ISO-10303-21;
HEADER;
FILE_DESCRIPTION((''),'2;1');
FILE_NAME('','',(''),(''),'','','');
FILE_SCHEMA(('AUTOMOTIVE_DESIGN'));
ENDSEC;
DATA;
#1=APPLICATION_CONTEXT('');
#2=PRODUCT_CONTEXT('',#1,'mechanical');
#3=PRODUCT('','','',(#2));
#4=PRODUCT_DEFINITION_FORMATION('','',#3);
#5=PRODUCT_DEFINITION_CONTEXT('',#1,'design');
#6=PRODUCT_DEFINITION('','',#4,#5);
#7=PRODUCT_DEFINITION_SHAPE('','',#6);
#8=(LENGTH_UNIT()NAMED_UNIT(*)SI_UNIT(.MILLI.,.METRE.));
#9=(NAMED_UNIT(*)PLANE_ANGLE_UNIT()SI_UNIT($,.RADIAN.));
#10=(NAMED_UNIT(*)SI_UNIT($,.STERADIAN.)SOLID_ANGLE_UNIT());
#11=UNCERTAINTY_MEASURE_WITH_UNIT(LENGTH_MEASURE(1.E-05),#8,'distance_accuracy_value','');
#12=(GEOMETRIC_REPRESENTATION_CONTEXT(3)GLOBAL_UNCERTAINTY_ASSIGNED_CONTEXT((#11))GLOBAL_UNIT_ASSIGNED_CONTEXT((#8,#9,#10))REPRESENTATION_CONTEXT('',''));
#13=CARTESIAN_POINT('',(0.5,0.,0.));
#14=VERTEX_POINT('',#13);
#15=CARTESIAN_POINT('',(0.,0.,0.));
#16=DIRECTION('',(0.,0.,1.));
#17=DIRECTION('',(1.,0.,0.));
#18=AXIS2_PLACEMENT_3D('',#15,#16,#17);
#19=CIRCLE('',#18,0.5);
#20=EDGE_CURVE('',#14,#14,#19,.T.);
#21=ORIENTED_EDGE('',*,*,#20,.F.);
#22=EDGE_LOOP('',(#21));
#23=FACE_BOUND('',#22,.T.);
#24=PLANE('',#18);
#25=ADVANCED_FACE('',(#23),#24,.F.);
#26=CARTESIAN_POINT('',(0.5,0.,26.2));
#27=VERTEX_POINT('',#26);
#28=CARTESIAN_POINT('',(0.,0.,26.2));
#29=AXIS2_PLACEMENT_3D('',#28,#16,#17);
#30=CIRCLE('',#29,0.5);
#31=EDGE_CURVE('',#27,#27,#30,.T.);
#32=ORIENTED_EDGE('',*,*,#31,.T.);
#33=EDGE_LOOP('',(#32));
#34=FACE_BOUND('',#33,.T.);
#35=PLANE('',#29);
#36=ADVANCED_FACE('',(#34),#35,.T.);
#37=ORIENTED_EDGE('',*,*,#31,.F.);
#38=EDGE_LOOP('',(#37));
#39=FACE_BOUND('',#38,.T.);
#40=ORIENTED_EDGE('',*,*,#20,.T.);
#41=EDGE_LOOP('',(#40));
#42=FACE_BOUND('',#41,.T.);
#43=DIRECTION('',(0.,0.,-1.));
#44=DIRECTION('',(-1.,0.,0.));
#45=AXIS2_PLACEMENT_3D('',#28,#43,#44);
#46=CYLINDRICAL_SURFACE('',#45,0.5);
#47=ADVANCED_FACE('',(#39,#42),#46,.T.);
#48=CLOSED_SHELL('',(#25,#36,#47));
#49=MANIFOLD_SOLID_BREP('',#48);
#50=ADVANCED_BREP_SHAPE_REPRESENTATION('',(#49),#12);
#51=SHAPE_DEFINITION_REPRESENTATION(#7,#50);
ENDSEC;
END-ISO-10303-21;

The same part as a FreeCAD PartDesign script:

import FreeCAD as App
import Part
import Sketcher
from FreeCAD import Vector
Q = App.Units.Quantity

doc = App.newDocument("Part")
params = doc.addObject("Spreadsheet::Sheet", "Params")
for row, (alias, value) in enumerate([
    ("sketch1_diameter", "1 mm"),
    ("pad1_length", "26.2 mm"),
], start=1):
    params.set(f"A{row}", alias)
    params.set(f"B{row}", "=" + value)
    params.setAlias(f"B{row}", alias)

body = doc.addObject("PartDesign::Body", "Body")

# Sketch on XY plane
sketch1 = body.newObject("Sketcher::SketchObject", "Sketch")
sketch1.AttachmentSupport = (doc.getObject("XY_Plane"), [""])
sketch1.MapMode = "FlatFace"
sketch1.addGeometry(Part.Circle(Vector(0, 0, 0), Vector(0, 0, 1), 0.5), False)
sketch1.addConstraint([
    Sketcher.Constraint("Coincident", 0, 3, -1, 1),
    Sketcher.Constraint("Diameter", 0, Q("1 mm")),
])
sketch1.setExpression("Constraints[1]", "Params.sketch1_diameter")
pad1 = body.newObject("PartDesign::Pad", "Pad")
pad1.Profile = sketch1
pad1.setExpression("Length", "Params.pad1_length")

doc.recompute()
